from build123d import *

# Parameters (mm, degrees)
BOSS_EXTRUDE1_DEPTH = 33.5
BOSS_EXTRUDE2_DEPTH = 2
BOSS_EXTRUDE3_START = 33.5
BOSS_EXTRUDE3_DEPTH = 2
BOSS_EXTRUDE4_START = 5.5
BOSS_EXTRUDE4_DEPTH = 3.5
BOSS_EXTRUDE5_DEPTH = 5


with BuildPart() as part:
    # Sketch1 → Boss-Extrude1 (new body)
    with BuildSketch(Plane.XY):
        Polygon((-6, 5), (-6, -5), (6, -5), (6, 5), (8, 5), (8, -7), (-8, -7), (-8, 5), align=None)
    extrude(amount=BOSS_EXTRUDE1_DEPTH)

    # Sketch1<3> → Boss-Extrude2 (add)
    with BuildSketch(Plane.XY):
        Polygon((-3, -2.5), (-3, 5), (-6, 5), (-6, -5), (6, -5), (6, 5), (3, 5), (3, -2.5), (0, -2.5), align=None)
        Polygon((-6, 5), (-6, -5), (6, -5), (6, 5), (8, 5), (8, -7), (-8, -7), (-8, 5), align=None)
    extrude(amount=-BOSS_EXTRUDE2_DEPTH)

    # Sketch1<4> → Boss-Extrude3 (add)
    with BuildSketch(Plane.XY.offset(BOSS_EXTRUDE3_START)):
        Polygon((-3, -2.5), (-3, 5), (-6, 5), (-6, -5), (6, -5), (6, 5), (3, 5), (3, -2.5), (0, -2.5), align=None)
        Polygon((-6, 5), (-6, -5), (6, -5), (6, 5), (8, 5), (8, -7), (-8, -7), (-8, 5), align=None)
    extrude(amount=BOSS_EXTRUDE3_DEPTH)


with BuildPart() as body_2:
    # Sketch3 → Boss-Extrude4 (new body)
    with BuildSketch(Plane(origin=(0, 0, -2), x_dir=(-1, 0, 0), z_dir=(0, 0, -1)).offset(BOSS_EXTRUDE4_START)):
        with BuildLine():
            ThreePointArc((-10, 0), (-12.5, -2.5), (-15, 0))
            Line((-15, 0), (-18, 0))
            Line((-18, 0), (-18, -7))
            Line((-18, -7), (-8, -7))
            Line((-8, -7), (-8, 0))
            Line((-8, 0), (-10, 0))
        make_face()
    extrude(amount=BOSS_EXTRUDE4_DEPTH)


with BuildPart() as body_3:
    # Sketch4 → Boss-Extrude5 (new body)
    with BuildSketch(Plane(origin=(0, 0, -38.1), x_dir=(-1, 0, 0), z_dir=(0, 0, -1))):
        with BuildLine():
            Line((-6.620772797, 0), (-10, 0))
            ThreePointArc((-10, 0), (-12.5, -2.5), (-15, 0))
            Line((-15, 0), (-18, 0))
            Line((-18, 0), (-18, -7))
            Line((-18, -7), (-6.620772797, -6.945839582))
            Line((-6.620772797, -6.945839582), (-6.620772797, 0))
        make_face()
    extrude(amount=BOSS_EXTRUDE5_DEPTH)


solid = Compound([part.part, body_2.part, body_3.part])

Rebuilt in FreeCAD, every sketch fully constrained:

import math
import FreeCAD as App
import Part
import Sketcher
from FreeCAD import Vector


def add_polygon(sketch, points):
    """Adds a closed chain of lines whose ends are joined by coincident constraints."""
    first, n = sketch.GeometryCount, len(points)
    for a, b in zip(points, points[1:] + points[:1]):
        sketch.addGeometry(Part.LineSegment(App.Vector(*a, 0), App.Vector(*b, 0)), False)
    for i in range(n):
        sketch.addConstraint(Sketcher.Constraint("Coincident", first + i, 2, first + (i + 1) % n, 1))

doc = App.newDocument("Part")
body = doc.addObject("PartDesign::Body", "Body")

sketch1 = body.newObject("Sketcher::SketchObject", "Sketch")
sketch1.AttachmentSupport = (doc.getObject("XY_Plane"), [""])
sketch1.MapMode = "FlatFace"
add_polygon(sketch1, [(-6, -5), (-6, 5), (-8, 5), (-8, -7), (8, -7), (8, 5), (6, 5), (6, -5)])
sketch1.addConstraint([
    Sketcher.Constraint("Vertical", 0),
    Sketcher.Constraint("Horizontal", 1),
    Sketcher.Constraint("Vertical", 2),
    Sketcher.Constraint("Horizontal", 3),
    Sketcher.Constraint("Vertical", 4),
    Sketcher.Constraint("Horizontal", 5),
    Sketcher.Constraint("Vertical", 6),
    Sketcher.Constraint("Horizontal", 7),
    Sketcher.Constraint("Symmetric", 0, 2, 6, 2, -1, 1),
    Sketcher.Constraint("Symmetric", 1, 2, 4, 2, -2),
    Sketcher.Constraint("Equal", 7, 2),
    Sketcher.Constraint("DistanceX", 1, 2, 1, 1, 2.0),
    Sketcher.Constraint("DistanceX", 3, 1, 3, 2, 16.0),
    Sketcher.Constraint("DistanceY", 0, 1, 0, 2, 10.0),
])
pad1 = body.newObject("PartDesign::Pad", "Pad")
pad1.Profile = sketch1
pad1.Length = 33.5

sketch2 = body.newObject("Sketcher::SketchObject", "Sketch001")
sketch2.AttachmentSupport = (doc.getObject("XY_Plane"), [""])
sketch2.MapMode = "FlatFace"
add_polygon(sketch2, [(-3, -2.5), (-3, 5), (-8, 5), (-8, -7), (8, -7), (8, 5), (3, 5), (3, -2.5)])
sketch2.addConstraint([
    Sketcher.Constraint("Vertical", 0),
    Sketcher.Constraint("Horizontal", 1),
    Sketcher.Constraint("Vertical", 2),
    Sketcher.Constraint("Horizontal", 3),
    Sketcher.Constraint("Vertical", 4),
    Sketcher.Constraint("Horizontal", 5),
    Sketcher.Constraint("Vertical", 6),
    Sketcher.Constraint("Horizontal", 7),
    Sketcher.Constraint("Symmetric", 1, 2, 4, 2, -2),
    Sketcher.Constraint("Equal", 1, 5),
    Sketcher.Constraint("DistanceX", 1, 2, 1, 1, 5.0),
    Sketcher.Constraint("DistanceX", 3, 1, 3, 2, 16.0),
    Sketcher.Constraint("DistanceY", 2, 2, 2, 1, 12.0),
    Sketcher.Constraint("DistanceY", 0, 1, 0, 2, 7.5),
    Sketcher.Constraint("DistanceY", -1, 1, 0, 2, 5.0),
])
pad2 = body.newObject("PartDesign::Pad", "Pad001")
pad2.Profile = sketch2
pad2.Length = 2
pad2.Reversed = True

sketch3 = body.newObject("Sketcher::SketchObject", "Sketch002")
sketch3.AttachmentSupport = (doc.getObject("XY_Plane"), [""])
sketch3.MapMode = "FlatFace"
sketch3.AttachmentOffset = App.Placement(Vector(0, 0, 33.5), App.Rotation())
add_polygon(sketch3, [(-3, -2.5), (-3, 5), (-8, 5), (-8, -7), (8, -7), (8, 5), (3, 5), (3, -2.5)])
sketch3.addConstraint([
    Sketcher.Constraint("Vertical", 0),
    Sketcher.Constraint("Horizontal", 1),
    Sketcher.Constraint("Vertical", 2),
    Sketcher.Constraint("Horizontal", 3),
    Sketcher.Constraint("Vertical", 4),
    Sketcher.Constraint("Horizontal", 5),
    Sketcher.Constraint("Vertical", 6),
    Sketcher.Constraint("Horizontal", 7),
    Sketcher.Constraint("Symmetric", 1, 2, 4, 2, -2),
    Sketcher.Constraint("Equal", 1, 5),
    Sketcher.Constraint("DistanceX", 1, 2, 1, 1, 5.0),
    Sketcher.Constraint("DistanceX", 3, 1, 3, 2, 16.0),
    Sketcher.Constraint("DistanceY", 2, 2, 2, 1, 12.0),
    Sketcher.Constraint("DistanceY", 0, 1, 0, 2, 7.5),
    Sketcher.Constraint("DistanceY", -1, 1, 0, 2, 5.0),
])
pad3 = body.newObject("PartDesign::Pad", "Pad002")
pad3.Profile = sketch3
pad3.Length = 2
body2 = doc.addObject("PartDesign::Body", "Body001")

sketch4 = body2.newObject("Sketcher::SketchObject", "Sketch003")
sketch4.AttachmentSupport = (doc.getObject("XY_Plane001"), [""])
sketch4.MapMode = "FlatFace"
sketch4.AttachmentOffset = App.Placement(Vector(0, 0, -7.5), App.Rotation())
sketch4.addGeometry([
    Part.ArcOfCircle(Part.Circle(Vector(12.5, 0, 0), Vector(0, 0, 1), 2.5), math.radians(180), math.radians(360)),
    Part.LineSegment(Vector(15, 0, 0), Vector(18, 0, 0)),
    Part.LineSegment(Vector(18, 0, 0), Vector(18, -7, 0)),
    Part.LineSegment(Vector(18, -7, 0), Vector(8, -7, 0)),
    Part.LineSegment(Vector(8, -7, 0), Vector(8, 0, 0)),
    Part.LineSegment(Vector(8, 0, 0), Vector(10, 0, 0)),
], False)
sketch4.addConstraint([
    Sketcher.Constraint("Coincident", 0, 2, 1, 1),
    Sketcher.Constraint("Coincident", 1, 2, 2, 1),
    Sketcher.Constraint("Coincident", 2, 2, 3, 1),
    Sketcher.Constraint("Coincident", 3, 2, 4, 1),
    Sketcher.Constraint("Coincident", 4, 2, 5, 1),
    Sketcher.Constraint("Coincident", 5, 2, 0, 1),
    Sketcher.Constraint("Horizontal", 1),
    Sketcher.Constraint("Vertical", 2),
    Sketcher.Constraint("Horizontal", 3),
    Sketcher.Constraint("Vertical", 4),
    Sketcher.Constraint("Horizontal", 5),
    Sketcher.Constraint("PointOnObject", 0, 3, -1),
    Sketcher.Constraint("PointOnObject", 0, 2, -1),
    Sketcher.Constraint("PointOnObject", 4, 2, -1),
    Sketcher.Constraint("Radius", 0, 2.5),
    Sketcher.Constraint("DistanceX", 1, 1, 1, 2, 3.0),
    Sketcher.Constraint("DistanceX", 3, 2, 3, 1, 10.0),
    Sketcher.Constraint("DistanceY", 2, 2, 2, 1, 7.0),
    Sketcher.Constraint("DistanceX", -1, 1, 0, 2, 15.0),
])
pad4 = body2.newObject("PartDesign::Pad", "Pad003")
pad4.Profile = sketch4
pad4.Length = 3.5
pad4.Reversed = True
body3 = doc.addObject("PartDesign::Body", "Body002")

sketch5 = body3.newObject("Sketcher::SketchObject", "Sketch004")
sketch5.AttachmentSupport = (doc.getObject("XY_Plane002"), [""])
sketch5.MapMode = "FlatFace"
sketch5.AttachmentOffset = App.Placement(Vector(0, 0, -38.1), App.Rotation())
sketch5.addGeometry([
    Part.LineSegment(Vector(6.620773, 0, 0), Vector(10, 0, 0)),
    Part.ArcOfCircle(Part.Circle(Vector(12.5, 0, 0), Vector(0, 0, 1), 2.5), math.radians(180), math.radians(360)),
    Part.LineSegment(Vector(15, 0, 0), Vector(18, 0, 0)),
    Part.LineSegment(Vector(18, 0, 0), Vector(18, -7, 0)),
    Part.LineSegment(Vector(18, -7, 0), Vector(6.620773, -6.94584, 0)),
    Part.LineSegment(Vector(6.620773, -6.94584, 0), Vector(6.620773, 0, 0)),
], False)
sketch5.addConstraint([
    Sketcher.Constraint("Coincident", 0, 2, 1, 1),
    Sketcher.Constraint("Coincident", 1, 2, 2, 1),
    Sketcher.Constraint("Coincident", 2, 2, 3, 1),
    Sketcher.Constraint("Coincident", 3, 2, 4, 1),
    Sketcher.Constraint("Coincident", 4, 2, 5, 1),
    Sketcher.Constraint("Coincident", 5, 2, 0, 1),
    Sketcher.Constraint("Horizontal", 0),
    Sketcher.Constraint("Horizontal", 2),
    Sketcher.Constraint("Vertical", 3),
    Sketcher.Constraint("Vertical", 5),
    Sketcher.Constraint("PointOnObject", 1, 3, -1),
    Sketcher.Constraint("PointOnObject", 0, 2, -1),
    Sketcher.Constraint("PointOnObject", 1, 2, -1),
    Sketcher.Constraint("Radius", 1, 2.5),
    Sketcher.Constraint("DistanceX", 2, 1, 2, 2, 3.0),
    Sketcher.Constraint("DistanceY", 3, 2, 3, 1, 7.0),
    Sketcher.Constraint("DistanceX", -1, 1, 0, 2, 10.0),
    Sketcher.Constraint("DistanceY", 5, 1, 5, 2, 6.94584),
    Sketcher.Constraint("DistanceX", 0, 1, 0, 2, 3.379227),
])
pad5 = body3.newObject("PartDesign::Pad", "Pad004")
pad5.Profile = sketch5
pad5.Length = 5
pad5.Reversed = True

doc.recompute()
